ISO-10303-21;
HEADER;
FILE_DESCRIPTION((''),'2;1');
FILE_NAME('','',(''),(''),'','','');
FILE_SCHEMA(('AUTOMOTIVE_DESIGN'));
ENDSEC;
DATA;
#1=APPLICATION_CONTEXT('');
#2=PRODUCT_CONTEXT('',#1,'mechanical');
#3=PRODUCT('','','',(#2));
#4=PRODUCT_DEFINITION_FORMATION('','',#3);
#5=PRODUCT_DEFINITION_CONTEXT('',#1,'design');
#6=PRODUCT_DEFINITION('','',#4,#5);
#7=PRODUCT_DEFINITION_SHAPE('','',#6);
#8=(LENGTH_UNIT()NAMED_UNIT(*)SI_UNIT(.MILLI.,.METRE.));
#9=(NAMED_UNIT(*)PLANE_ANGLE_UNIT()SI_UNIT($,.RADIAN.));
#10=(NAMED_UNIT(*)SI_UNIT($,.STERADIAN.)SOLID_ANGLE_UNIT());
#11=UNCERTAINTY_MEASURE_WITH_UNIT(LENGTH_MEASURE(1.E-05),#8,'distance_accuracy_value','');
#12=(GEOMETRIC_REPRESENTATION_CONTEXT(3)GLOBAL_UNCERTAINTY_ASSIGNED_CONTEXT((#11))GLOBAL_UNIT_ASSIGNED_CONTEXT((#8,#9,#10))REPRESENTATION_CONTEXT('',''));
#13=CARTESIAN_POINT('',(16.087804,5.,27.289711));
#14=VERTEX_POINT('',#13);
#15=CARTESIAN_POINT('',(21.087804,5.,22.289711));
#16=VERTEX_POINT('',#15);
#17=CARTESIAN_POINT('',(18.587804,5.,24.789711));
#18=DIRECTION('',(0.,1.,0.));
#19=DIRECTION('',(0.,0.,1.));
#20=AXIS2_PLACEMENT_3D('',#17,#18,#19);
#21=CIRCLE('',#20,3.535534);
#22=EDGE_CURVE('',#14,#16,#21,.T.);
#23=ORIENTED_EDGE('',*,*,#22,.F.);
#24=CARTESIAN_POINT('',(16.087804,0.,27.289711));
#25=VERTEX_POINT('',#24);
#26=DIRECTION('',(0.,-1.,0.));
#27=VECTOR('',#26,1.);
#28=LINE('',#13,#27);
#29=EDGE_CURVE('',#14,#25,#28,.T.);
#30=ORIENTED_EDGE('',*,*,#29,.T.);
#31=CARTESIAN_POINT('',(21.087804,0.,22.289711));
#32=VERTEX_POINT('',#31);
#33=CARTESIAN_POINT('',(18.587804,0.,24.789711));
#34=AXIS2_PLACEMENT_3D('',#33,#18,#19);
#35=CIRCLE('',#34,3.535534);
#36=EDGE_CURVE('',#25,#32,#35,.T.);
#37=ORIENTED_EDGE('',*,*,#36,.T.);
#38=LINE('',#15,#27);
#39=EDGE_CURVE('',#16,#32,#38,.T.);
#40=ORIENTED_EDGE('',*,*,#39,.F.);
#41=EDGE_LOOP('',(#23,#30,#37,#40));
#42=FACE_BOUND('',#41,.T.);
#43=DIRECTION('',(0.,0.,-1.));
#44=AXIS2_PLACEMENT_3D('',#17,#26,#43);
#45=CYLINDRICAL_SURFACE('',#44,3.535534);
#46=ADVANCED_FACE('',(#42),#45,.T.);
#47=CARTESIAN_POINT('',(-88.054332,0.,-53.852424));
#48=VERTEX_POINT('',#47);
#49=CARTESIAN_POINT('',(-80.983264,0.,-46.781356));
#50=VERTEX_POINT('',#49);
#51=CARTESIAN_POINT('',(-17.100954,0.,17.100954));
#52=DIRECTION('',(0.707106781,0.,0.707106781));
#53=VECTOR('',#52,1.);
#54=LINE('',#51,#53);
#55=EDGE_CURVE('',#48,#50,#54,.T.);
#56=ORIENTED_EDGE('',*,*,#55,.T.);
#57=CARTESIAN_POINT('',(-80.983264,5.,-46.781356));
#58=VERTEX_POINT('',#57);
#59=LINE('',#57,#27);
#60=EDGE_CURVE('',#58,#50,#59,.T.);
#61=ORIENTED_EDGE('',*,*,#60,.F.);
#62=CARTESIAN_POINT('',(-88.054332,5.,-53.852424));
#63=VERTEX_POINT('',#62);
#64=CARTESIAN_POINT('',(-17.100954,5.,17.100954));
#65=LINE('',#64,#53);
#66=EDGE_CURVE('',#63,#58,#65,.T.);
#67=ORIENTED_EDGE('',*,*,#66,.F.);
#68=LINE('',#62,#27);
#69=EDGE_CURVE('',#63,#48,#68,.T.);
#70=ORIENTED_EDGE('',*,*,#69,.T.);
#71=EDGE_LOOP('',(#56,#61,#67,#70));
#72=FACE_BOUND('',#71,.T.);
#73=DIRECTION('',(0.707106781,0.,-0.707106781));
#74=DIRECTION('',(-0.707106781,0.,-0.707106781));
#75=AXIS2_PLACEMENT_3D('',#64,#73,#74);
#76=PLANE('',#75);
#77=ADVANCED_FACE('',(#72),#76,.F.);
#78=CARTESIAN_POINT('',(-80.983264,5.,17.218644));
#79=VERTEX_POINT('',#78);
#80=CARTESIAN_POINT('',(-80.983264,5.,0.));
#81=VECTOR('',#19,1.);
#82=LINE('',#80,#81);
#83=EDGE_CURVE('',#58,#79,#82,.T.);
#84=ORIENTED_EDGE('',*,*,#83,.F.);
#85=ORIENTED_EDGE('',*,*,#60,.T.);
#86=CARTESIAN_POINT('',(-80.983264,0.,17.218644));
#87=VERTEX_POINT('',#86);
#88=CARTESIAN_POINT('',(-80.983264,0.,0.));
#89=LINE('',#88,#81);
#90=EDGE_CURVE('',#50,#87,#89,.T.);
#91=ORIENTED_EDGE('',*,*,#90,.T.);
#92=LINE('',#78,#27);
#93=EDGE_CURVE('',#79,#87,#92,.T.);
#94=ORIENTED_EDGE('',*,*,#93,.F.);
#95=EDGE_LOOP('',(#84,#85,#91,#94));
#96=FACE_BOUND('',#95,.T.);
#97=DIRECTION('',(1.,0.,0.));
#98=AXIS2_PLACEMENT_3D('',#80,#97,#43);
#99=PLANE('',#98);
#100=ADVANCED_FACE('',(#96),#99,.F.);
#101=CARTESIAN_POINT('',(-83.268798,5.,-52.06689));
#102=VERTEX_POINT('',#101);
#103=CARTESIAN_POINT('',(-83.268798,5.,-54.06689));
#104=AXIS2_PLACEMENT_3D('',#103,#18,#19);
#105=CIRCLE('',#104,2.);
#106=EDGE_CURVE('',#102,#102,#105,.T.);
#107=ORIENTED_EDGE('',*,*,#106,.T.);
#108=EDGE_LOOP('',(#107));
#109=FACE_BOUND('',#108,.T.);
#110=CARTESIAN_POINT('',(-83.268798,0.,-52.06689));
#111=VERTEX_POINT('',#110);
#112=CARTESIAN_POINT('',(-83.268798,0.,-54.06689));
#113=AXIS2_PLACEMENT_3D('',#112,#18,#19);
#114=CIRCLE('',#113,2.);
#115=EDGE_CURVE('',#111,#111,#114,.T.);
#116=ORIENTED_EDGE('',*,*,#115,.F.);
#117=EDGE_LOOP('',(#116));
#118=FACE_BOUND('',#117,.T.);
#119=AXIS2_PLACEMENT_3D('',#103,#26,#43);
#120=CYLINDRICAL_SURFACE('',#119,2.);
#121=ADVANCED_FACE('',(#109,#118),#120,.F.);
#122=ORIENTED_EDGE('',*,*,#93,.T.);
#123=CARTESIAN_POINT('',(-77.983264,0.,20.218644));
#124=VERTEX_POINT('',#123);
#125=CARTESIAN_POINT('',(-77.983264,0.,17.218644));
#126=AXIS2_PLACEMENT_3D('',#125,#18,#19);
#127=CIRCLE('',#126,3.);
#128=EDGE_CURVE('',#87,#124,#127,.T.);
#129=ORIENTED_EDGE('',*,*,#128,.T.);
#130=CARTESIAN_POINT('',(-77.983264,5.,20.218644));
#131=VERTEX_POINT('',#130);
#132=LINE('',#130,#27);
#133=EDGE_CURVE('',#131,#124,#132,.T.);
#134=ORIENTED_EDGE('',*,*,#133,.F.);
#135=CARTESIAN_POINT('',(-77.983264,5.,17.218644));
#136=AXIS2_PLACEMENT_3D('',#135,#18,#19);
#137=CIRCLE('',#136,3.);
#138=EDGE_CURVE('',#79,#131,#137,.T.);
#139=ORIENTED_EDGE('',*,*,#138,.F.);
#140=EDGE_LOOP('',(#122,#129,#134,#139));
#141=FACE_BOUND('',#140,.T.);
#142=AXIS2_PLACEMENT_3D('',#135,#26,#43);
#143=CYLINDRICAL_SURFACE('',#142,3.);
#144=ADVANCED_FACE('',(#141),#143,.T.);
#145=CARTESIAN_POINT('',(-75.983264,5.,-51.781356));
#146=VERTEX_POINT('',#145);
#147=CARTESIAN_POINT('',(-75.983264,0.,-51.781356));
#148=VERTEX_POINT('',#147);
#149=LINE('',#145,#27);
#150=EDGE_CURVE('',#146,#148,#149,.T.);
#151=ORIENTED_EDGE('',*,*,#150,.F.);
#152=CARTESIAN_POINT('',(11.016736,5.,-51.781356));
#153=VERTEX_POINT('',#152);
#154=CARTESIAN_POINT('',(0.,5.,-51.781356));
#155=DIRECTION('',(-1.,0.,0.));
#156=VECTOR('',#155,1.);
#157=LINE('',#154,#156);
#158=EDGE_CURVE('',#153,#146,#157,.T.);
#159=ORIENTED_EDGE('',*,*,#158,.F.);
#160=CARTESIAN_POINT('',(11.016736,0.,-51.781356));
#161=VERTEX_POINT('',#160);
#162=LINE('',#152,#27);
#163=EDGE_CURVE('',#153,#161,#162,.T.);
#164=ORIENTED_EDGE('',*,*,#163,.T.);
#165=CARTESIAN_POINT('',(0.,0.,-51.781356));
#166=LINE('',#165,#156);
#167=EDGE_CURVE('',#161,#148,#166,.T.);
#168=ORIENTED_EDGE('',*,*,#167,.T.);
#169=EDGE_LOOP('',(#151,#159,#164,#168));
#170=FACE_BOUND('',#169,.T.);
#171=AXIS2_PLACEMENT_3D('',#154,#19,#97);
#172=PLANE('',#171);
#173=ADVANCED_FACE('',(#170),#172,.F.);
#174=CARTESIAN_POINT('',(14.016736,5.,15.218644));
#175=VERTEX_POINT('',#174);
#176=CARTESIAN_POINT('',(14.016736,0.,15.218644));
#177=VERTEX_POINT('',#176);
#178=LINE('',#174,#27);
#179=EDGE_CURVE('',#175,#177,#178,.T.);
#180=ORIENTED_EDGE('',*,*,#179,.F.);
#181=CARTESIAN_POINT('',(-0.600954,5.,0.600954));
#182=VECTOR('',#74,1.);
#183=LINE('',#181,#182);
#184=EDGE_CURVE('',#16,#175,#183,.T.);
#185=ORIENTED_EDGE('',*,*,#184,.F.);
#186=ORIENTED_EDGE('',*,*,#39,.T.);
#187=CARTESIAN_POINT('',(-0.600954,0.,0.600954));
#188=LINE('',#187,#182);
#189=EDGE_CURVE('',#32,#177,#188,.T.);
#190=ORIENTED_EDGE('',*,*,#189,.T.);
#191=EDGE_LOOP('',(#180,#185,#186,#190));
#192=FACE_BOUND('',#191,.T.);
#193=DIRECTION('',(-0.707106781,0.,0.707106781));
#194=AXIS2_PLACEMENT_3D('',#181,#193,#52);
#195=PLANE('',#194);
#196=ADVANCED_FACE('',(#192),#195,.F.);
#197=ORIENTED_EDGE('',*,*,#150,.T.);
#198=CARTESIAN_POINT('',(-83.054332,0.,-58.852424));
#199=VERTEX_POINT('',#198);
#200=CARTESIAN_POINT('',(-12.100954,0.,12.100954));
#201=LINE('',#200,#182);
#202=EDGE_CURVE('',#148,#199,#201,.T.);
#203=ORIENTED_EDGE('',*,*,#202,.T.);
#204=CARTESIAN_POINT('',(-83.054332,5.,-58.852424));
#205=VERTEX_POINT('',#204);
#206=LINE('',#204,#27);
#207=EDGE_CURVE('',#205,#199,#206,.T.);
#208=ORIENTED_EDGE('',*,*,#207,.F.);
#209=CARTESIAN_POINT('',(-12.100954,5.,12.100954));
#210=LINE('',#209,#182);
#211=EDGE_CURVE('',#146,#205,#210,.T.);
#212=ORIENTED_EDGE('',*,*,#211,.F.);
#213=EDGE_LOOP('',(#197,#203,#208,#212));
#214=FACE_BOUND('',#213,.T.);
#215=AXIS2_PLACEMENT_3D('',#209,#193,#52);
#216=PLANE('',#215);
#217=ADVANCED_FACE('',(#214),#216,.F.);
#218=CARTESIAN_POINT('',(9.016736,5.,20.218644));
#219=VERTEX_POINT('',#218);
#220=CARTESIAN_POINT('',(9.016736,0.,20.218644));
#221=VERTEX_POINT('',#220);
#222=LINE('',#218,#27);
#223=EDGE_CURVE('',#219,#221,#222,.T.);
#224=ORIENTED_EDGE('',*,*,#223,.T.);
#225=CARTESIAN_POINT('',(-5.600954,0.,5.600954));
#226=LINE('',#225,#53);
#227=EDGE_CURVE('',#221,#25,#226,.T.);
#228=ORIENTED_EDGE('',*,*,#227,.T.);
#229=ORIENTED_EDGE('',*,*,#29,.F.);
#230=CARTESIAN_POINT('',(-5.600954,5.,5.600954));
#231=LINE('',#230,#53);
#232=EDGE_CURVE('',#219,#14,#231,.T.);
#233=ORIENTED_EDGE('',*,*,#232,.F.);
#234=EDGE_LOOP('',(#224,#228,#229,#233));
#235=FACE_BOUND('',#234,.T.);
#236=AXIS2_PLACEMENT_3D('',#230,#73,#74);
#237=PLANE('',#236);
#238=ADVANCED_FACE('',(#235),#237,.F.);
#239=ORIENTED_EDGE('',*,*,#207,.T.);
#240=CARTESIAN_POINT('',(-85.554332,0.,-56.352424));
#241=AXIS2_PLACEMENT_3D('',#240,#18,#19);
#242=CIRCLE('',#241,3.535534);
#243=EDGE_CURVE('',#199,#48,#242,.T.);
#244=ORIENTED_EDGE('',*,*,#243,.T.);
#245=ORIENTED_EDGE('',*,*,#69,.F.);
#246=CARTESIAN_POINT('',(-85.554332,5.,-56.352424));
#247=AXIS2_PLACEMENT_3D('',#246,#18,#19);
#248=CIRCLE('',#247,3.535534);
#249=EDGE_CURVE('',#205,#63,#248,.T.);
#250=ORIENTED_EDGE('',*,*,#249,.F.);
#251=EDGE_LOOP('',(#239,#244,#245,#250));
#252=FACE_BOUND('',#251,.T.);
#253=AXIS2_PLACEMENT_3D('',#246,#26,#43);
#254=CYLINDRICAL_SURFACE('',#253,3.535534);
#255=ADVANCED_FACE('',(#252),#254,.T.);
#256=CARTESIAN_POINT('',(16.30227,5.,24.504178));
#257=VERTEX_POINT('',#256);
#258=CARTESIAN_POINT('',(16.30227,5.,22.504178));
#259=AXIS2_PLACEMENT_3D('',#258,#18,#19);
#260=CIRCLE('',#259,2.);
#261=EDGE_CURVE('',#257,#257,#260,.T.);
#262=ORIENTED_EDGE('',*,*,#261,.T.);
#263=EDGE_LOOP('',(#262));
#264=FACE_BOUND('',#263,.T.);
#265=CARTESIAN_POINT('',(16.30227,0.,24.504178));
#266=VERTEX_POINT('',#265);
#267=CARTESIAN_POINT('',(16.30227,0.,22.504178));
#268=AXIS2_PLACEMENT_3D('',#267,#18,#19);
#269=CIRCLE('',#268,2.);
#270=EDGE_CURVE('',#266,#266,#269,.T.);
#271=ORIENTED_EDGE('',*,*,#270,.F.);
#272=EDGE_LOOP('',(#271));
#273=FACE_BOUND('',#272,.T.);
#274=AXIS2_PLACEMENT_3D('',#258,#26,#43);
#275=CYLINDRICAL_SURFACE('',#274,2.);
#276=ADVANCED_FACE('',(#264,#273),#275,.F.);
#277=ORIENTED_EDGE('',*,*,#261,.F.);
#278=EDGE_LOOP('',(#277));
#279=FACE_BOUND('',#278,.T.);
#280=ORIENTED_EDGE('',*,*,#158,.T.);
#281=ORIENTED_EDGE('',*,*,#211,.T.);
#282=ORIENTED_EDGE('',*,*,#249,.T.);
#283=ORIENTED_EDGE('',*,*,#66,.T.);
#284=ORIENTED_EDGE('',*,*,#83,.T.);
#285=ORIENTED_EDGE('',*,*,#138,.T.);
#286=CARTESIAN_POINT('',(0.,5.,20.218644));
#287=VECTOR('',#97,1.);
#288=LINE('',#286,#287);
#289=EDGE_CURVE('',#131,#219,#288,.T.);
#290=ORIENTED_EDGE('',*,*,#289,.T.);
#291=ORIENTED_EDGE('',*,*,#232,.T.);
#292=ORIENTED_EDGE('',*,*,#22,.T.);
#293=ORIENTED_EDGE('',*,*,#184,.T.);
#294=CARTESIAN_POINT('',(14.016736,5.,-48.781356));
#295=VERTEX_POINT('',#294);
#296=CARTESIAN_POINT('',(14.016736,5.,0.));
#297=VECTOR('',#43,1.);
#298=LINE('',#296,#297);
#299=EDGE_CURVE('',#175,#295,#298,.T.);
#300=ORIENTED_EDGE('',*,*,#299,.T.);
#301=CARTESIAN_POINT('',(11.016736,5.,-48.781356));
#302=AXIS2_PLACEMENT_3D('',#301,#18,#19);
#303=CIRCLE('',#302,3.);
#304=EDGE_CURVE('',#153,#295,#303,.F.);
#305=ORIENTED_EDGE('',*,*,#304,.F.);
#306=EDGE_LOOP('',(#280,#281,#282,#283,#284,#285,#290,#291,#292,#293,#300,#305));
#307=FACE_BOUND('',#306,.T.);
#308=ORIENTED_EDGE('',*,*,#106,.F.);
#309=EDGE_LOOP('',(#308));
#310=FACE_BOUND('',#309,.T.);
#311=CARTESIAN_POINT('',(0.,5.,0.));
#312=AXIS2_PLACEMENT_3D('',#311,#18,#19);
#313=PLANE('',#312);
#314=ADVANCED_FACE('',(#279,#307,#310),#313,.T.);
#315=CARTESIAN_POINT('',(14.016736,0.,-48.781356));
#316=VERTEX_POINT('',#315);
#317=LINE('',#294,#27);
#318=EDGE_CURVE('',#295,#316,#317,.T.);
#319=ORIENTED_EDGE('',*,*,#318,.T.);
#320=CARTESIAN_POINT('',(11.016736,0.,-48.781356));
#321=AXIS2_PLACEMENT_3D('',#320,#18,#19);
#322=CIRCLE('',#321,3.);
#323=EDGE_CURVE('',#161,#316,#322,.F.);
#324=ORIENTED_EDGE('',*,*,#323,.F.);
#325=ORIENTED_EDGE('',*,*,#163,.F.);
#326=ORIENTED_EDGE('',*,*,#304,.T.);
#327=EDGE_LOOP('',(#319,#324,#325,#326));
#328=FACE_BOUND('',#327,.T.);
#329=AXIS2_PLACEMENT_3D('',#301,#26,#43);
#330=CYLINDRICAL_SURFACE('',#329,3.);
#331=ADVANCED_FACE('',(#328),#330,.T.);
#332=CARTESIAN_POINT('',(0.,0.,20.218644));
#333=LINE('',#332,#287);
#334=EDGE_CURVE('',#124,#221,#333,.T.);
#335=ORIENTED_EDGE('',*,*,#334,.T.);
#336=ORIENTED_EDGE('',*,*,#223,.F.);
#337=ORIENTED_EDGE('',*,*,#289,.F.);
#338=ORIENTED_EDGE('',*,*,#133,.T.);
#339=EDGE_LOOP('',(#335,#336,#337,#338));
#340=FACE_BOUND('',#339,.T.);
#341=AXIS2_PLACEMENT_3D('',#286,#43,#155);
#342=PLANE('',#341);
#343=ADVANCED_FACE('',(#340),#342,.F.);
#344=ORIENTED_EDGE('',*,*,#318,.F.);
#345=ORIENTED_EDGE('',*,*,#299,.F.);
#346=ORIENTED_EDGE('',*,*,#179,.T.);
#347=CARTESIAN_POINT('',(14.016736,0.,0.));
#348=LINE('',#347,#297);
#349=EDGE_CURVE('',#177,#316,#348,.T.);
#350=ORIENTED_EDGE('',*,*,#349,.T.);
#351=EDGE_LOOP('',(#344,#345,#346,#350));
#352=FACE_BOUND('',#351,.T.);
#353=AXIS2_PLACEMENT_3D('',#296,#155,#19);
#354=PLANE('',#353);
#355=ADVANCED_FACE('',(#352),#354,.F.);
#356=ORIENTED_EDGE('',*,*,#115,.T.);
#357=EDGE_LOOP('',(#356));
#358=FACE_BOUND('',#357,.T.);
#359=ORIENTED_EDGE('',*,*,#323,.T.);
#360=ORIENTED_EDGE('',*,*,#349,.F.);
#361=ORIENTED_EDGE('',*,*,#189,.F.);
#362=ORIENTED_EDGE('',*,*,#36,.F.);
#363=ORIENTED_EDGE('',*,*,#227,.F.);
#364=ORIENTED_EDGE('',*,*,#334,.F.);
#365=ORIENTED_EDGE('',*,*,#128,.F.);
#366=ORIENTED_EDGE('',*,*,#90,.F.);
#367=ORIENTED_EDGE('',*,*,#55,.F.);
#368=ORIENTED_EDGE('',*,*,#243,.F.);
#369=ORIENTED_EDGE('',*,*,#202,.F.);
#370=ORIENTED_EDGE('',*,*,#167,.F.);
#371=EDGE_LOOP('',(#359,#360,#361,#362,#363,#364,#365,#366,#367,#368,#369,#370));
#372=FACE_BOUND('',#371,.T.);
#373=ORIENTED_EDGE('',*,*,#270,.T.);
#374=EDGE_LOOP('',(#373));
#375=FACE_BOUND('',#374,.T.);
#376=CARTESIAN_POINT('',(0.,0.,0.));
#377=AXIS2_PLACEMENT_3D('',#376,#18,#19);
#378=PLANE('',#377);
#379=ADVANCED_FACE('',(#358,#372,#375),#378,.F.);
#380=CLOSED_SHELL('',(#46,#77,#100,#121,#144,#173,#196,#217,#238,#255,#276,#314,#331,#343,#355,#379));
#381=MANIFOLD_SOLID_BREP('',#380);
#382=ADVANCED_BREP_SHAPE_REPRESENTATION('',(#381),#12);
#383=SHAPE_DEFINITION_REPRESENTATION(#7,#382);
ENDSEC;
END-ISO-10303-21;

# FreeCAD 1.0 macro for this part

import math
import FreeCAD as App
import Part
import Sketcher
from FreeCAD import Vector
Q = App.Units.Quantity

doc = App.newDocument("Part")
params = doc.addObject("Spreadsheet::Sheet", "Params")
for row, (alias, value) in enumerate([
    ("sketch1_diameter", "4 mm"),
    ("sketch1_radius", "3 mm"),
    ("sketch1_width", "87 mm"),
    ("sketch1_height", "64 mm"),
    ("sketch1_length", "10 mm"),
    ("pad1_length", "5 mm"),
], start=1):
    params.set(f"A{row}", alias)
    params.set(f"B{row}", "=" + value)
    params.setAlias(f"B{row}", alias)

body = doc.addObject("PartDesign::Body", "Body")

# Sketch on XZ plane
sketch1 = body.newObject("Sketcher::SketchObject", "Sketch")
sketch1.AttachmentSupport = (doc.getObject("XZ_Plane"), [""])
sketch1.MapMode = "FlatFace"
sketch1.addGeometry(Part.LineSegment(Vector(9, 20.2, 0), Vector(16.1, 27.3, 0)), False)
sketch1.addGeometry(Part.ArcOfCircle(Part.Circle(Vector(18.6, 24.8, 0), Vector(0, 0, 1), 3.5), math.radians(-45), math.radians(135)), False)
sketch1.addGeometry(Part.LineSegment(Vector(21.1, 22.3, 0), Vector(14, 15.2, 0)), False)
sketch1.addGeometry(Part.LineSegment(Vector(14, 15.2, 0), Vector(14, -48.8, 0)), False)
sketch1.addGeometry(Part.ArcOfCircle(Part.Circle(Vector(11, -48.8, 0), Vector(0, 0, 1), 3), math.radians(-90), math.radians(0)), False)
sketch1.addGeometry(Part.LineSegment(Vector(11, -51.8, 0), Vector(-76, -51.8, 0)), False)
sketch1.addGeometry(Part.LineSegment(Vector(-76, -51.8, 0), Vector(-83.1, -58.9, 0)), False)
sketch1.addGeometry(Part.ArcOfCircle(Part.Circle(Vector(-85.6, -56.4, 0), Vector(0, 0, 1), 3.5), math.radians(135), math.radians(315)), False)
sketch1.addGeometry(Part.LineSegment(Vector(-88.1, -53.9, 0), Vector(-81, -46.8, 0)), False)
sketch1.addGeometry(Part.LineSegment(Vector(-81, -46.8, 0), Vector(-81, 17.2, 0)), False)
sketch1.addGeometry(Part.ArcOfCircle(Part.Circle(Vector(-78, 17.2, 0), Vector(0, 0, 1), 3), math.radians(90), math.radians(180)), False)
sketch1.addGeometry(Part.LineSegment(Vector(-78, 20.2, 0), Vector(9, 20.2, 0)), False)
sketch1.addGeometry(Part.Circle(Vector(16.3, 22.5, 0), Vector(0, 0, 1), 2), False)
sketch1.addGeometry(Part.Circle(Vector(-83.3, -54.1, 0), Vector(0, 0, 1), 2), False)
sketch1.addConstraint(Sketcher.Constraint("Tangent", 0, 2, 1, 2))
sketch1.addConstraint(Sketcher.Constraint("Tangent", 1, 1, 2, 1))
sketch1.addConstraint(Sketcher.Constraint("Coincident", 2, 2, 3, 1))
sketch1.addConstraint(Sketcher.Constraint("Tangent", 3, 2, 4, 2))
sketch1.addConstraint(Sketcher.Constraint("Tangent", 4, 1, 5, 1))
sketch1.addConstraint(Sketcher.Constraint("Coincident", 5, 2, 6, 1))
sketch1.addConstraint(Sketcher.Constraint("Tangent", 6, 2, 7, 2))
sketch1.addConstraint(Sketcher.Constraint("Tangent", 7, 1, 8, 1))
sketch1.addConstraint(Sketcher.Constraint("Coincident", 8, 2, 9, 1))
sketch1.addConstraint(Sketcher.Constraint("Tangent", 9, 2, 10, 2))
sketch1.addConstraint(Sketcher.Constraint("Tangent", 10, 1, 11, 1))
sketch1.addConstraint(Sketcher.Constraint("Coincident", 11, 2, 0, 1))
sketch1.addConstraint(Sketcher.Constraint("Vertical", 3))
sketch1.addConstraint(Sketcher.Constraint("Horizontal", 5))
sketch1.addConstraint(Sketcher.Constraint("Vertical", 9))
sketch1.addConstraint(Sketcher.Constraint("Horizontal", 11))
sketch1.addConstraint(Sketcher.Constraint("Equal", 1, 7))
sketch1.addConstraint(Sketcher.Constraint("Equal", 4, 10))
sketch1.addConstraint(Sketcher.Constraint("Equal", 12, 13))
sketch1.addConstraint(Sketcher.Constraint("Parallel", 0, 2))
sketch1.addConstraint(Sketcher.Constraint("Parallel", 2, 6))
sketch1.addConstraint(Sketcher.Constraint("Parallel", 6, 8))
sketch1.addConstraint(Sketcher.Constraint("Equal", 5, 11))
sketch1.addConstraint(Sketcher.Constraint("Equal", 0, 2))
sketch1.addConstraint(Sketcher.Constraint("Equal", 2, 6))
sketch1.addConstraint(Sketcher.Constraint("Diameter", 12, 4.0))
sketch1.addConstraint(Sketcher.Constraint("Radius", 4, 3.0))
sketch1.addConstraint(Sketcher.Constraint("DistanceX", 5, 2, 5, 1, 87.0))
sketch1.addConstraint(Sketcher.Constraint("DistanceY", 3, 2, 3, 1, 64.0))
sketch1.addConstraint(Sketcher.Constraint("Angle", 0, Q("45 deg")))
sketch1.addConstraint(Sketcher.Constraint("Distance", 0, 10.0))
sketch1.addConstraint(Sketcher.Constraint("DistanceX", 10, 3, 4, 3, 89.0))
sketch1.addConstraint(Sketcher.Constraint("DistanceX", 7, 3, 12, 3, 101.856602))
sketch1.addConstraint(Sketcher.Constraint("DistanceY", 7, 3, 12, 3, 78.856602))
sketch1.addConstraint(Sketcher.Constraint("DistanceX", 13, 3, 1, 3, 101.856602))
sketch1.addConstraint(Sketcher.Constraint("DistanceY", 13, 3, 1, 3, 78.856602))
sketch1.addConstraint(Sketcher.Constraint("DistanceY", -1, 1, 1, 3, 24.789711))
sketch1.addConstraint(Sketcher.Constraint("DistanceX", 7, 3, -1, 1, 85.554332))
sketch1.setExpression("Constraints[25]", "Params.sketch1_diameter")
sketch1.setExpression("Constraints[26]", "Params.sketch1_radius")
sketch1.setExpression("Constraints[27]", "Params.sketch1_width")
sketch1.setExpression("Constraints[28]", "Params.sketch1_height")
sketch1.setExpression("Constraints[30]", "Params.sketch1_length")
pad1 = body.newObject("PartDesign::Pad", "Pad")
pad1.Profile = sketch1
pad1.setExpression("Length", "Params.pad1_length")
pad1.Reversed = True

doc.recompute()
